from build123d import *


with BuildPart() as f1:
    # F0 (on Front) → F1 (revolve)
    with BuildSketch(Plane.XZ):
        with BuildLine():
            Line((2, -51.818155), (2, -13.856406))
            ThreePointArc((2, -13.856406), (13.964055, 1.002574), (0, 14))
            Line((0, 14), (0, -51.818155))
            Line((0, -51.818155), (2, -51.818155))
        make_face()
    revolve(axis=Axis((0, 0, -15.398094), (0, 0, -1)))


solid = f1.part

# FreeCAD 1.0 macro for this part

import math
import FreeCAD as App
import Part
import Sketcher
Q = App.Units.Quantity

doc = App.newDocument("Part")
params = doc.addObject("Spreadsheet::Sheet", "Params")
for row, (alias, value) in enumerate([
    ("sketch1_radius", "14 mm"),
    ("sketch1_width", "2 mm"),
    ("revolution_angle", "360 deg"),
], start=1):
    params.set(f"A{row}", alias)
    params.set(f"B{row}", "=" + value)
    params.setAlias(f"B{row}", alias)

body = doc.addObject("PartDesign::Body", "Body")

# Sketch on XZ plane
sketch1 = body.newObject("Sketcher::SketchObject", "Sketch")
sketch1.AttachmentSupport = (doc.getObject("XZ_Plane"), [""])
sketch1.MapMode = "FlatFace"
sketch1.addGeometry([
    Part.LineSegment(App.Vector(2, -51.8, 0), App.Vector(2, -13.9, 0)),
    Part.ArcOfCircle(Part.Circle(App.Vector(0, 0, 0), App.Vector(0, 0, 1), 14), math.radians(-82), math.radians(90)),
    Part.LineSegment(App.Vector(0, 14, 0), App.Vector(0, -51.8, 0)),
    Part.LineSegment(App.Vector(0, -51.8, 0), App.Vector(2, -51.8, 0)),
], False)
sketch1.addConstraint([
    Sketcher.Constraint("Coincident", 0, 2, 1, 1),
    Sketcher.Constraint("Coincident", 1, 2, 2, 1),
    Sketcher.Constraint("Coincident", 2, 2, 3, 1),
    Sketcher.Constraint("Coincident", 3, 2, 0, 1),
    Sketcher.Constraint("Vertical", 0),
    Sketcher.Constraint("Vertical", 2),
    Sketcher.Constraint("Horizontal", 3),
    Sketcher.Constraint("Coincident", 1, 3, -1, 1),
    Sketcher.Constraint("PointOnObject", 1, 2, -2),
    Sketcher.Constraint("Radius", 1, Q("14 mm")),
    Sketcher.Constraint("DistanceX", 3, 1, 3, 2, Q("2 mm")),
    Sketcher.Constraint("DistanceY", 0, 1, 0, 2, Q("37.961749 mm")),
])
sketch1.setExpression("Constraints[9]", "Params.sketch1_radius")
sketch1.setExpression("Constraints[10]", "Params.sketch1_width")
revolution = body.newObject("PartDesign::Revolution", "Revolution")
revolution.Profile = sketch1
revolution.ReferenceAxis = (sketch1, ["V_Axis"])
revolution.setExpression("Angle", "Params.revolution_angle")

doc.recompute()
